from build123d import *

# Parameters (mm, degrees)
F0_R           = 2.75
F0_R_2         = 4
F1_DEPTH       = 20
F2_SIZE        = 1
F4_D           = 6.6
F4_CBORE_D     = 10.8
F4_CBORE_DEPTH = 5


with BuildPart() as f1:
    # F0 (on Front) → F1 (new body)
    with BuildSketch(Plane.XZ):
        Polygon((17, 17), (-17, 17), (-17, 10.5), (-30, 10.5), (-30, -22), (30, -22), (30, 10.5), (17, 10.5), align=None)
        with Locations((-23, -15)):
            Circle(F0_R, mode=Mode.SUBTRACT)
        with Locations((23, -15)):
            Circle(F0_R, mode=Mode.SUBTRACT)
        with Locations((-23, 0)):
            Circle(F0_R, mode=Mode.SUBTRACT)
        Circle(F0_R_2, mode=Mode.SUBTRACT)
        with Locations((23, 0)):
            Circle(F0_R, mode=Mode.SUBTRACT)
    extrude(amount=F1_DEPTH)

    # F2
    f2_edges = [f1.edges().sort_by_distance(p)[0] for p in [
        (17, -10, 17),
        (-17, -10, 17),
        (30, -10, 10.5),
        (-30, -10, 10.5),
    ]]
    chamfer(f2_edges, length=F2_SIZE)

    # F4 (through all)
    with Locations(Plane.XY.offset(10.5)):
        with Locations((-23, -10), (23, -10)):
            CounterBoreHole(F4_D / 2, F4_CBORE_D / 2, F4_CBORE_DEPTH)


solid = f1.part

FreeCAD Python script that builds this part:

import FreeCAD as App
import Part
import Sketcher

V = App.Vector


def edges_at(feature, points):
    """Names of the edges that pass closest to the given points."""
    edges = feature.Shape.Edges
    near = lambda p: min(range(len(edges)), key=lambda i: edges[i].distToShape(Part.Vertex(*p))[0])
    return sorted({f"Edge{near(p) + 1}" for p in points})

doc = App.newDocument("Part")
body = doc.addObject("PartDesign::Body", "Body")

# Sketch on XZ plane
sketch1 = body.newObject("Sketcher::SketchObject", "Sketch")
sketch1.AttachmentSupport = (doc.getObject("XZ_Plane"), [""])
sketch1.MapMode = "FlatFace"
sketch1.addGeometry([
    Part.LineSegment(V(17, 17, 0), V(-17, 17, 0)),  # 0
    Part.LineSegment(V(-17, 17, 0), V(-17, 10.5, 0)),  # 1
    Part.LineSegment(V(-17, 10.5, 0), V(-30, 10.5, 0)),  # 2
    Part.LineSegment(V(-30, 10.5, 0), V(-30, -22, 0)),  # 3
    Part.LineSegment(V(-30, -22, 0), V(30, -22, 0)),  # 4
    Part.LineSegment(V(30, -22, 0), V(30, 10.5, 0)),  # 5
    Part.LineSegment(V(30, 10.5, 0), V(17, 10.5, 0)),  # 6
    Part.LineSegment(V(17, 10.5, 0), V(17, 17, 0)),  # 7
    Part.Circle(V(-23, -15, 0), V(0, 0, 1), 2.8),  # 8
    Part.Circle(V(23, -15, 0), V(0, 0, 1), 2.8),  # 9
    Part.Circle(V(-23, 0, 0), V(0, 0, 1), 2.8),  # 10
    Part.Circle(V(0, 0, 0), V(0, 0, 1), 4),  # 11
    Part.Circle(V(23, 0, 0), V(0, 0, 1), 2.8),  # 12
], False)
sketch1.addConstraint([
    Sketcher.Constraint("Coincident", 0, 2, 1, 1),
    Sketcher.Constraint("Coincident", 1, 2, 2, 1),
    Sketcher.Constraint("Coincident", 2, 2, 3, 1),
    Sketcher.Constraint("Coincident", 3, 2, 4, 1),
    Sketcher.Constraint("Coincident", 4, 2, 5, 1),
    Sketcher.Constraint("Coincident", 5, 2, 6, 1),
    Sketcher.Constraint("Coincident", 6, 2, 7, 1),
    Sketcher.Constraint("Coincident", 7, 2, 0, 1),
    Sketcher.Constraint("Horizontal", 0),
    Sketcher.Constraint("Vertical", 1),
    Sketcher.Constraint("Horizontal", 2),
    Sketcher.Constraint("Vertical", 3),
    Sketcher.Constraint("Horizontal", 4),
    Sketcher.Constraint("Vertical", 5),
    Sketcher.Constraint("Horizontal", 6),
    Sketcher.Constraint("Vertical", 7),
    Sketcher.Constraint("Coincident", 11, 3, -1, 1),
    Sketcher.Constraint("Equal", 8, 9),
    Sketcher.Constraint("Equal", 9, 10),
    Sketcher.Constraint("Equal", 10, 12),
    Sketcher.Constraint("Symmetric", 10, 3, 12, 3, -1, 1),
    Sketcher.Constraint("Symmetric", 8, 3, 9, 3, -2),
    Sketcher.Constraint("Symmetric", 2, 2, 5, 2, -2),
    Sketcher.Constraint("PointOnObject", 10, 3, -1),
    Sketcher.Constraint("Vertical", 8, 3, 10, 3),
    Sketcher.Constraint("Equal", 2, 6),
    Sketcher.Constraint("Diameter", 11, 8.0),
    Sketcher.Constraint("Diameter", 8, 5.5),
    Sketcher.Constraint("DistanceX", 0, 2, 0, 1, 34.0),
    Sketcher.Constraint("DistanceX", 2, 2, 2, 1, 13.0),
    Sketcher.Constraint("DistanceY", 1, 2, 1, 1, 6.5),
    Sketcher.Constraint("DistanceY", 3, 2, 3, 1, 32.5),
    Sketcher.Constraint("DistanceX", 8, 3, -1, 1, 23.0),
    Sketcher.Constraint("DistanceY", 8, 3, -1, 1, 15.0),
    Sketcher.Constraint("DistanceY", -1, 1, 0, 2, 17.0),
])
pad1 = body.newObject("PartDesign::Pad", "Pad")
pad1.Profile = sketch1
pad1.Length = 20
doc.recompute()

chamfer = body.newObject("PartDesign::Chamfer", "Chamfer")
chamfer.Base = (pad1, edges_at(pad1, [
    (17, -10, 17),
    (-17, -10, 17),
    (30, -10, 10.5),
    (-30, -10, 10.5),
]))
chamfer.Size = 1

# Sketch on XY plane
sketch2 = body.newObject("Sketcher::SketchObject", "Sketch001")
sketch2.AttachmentSupport = (doc.getObject("XY_Plane"), [""])
sketch2.MapMode = "FlatFace"
sketch2.AttachmentOffset = App.Placement(V(0, 0, 10.5), App.Rotation())
sketch2.addGeometry([
    Part.Circle(V(-23, -10, 0), V(0, 0, 1), 3.3),
    Part.Circle(V(23, -10, 0), V(0, 0, 1), 3.3),
], False)
sketch2.addConstraint([
    Sketcher.Constraint("Equal", 0, 1),
    Sketcher.Constraint("Symmetric", 0, 3, 1, 3, -2),
    Sketcher.Constraint("Diameter", 0, 6.6),
    Sketcher.Constraint("DistanceX", 0, 3, -1, 1, 23.0),
    Sketcher.Constraint("DistanceY", 0, 3, -1, 1, 10.0),
])
doc.recompute()
hole = body.newObject("PartDesign::Hole", "Hole")
hole.Profile = sketch2
hole.ThreadType = "None"
hole.Diameter = 6.6
hole.DepthType = "ThroughAll"
hole.HoleCutType = "Counterbore"
hole.HoleCutDiameter = 10.8
hole.HoleCutDepth = 5

doc.recompute()
